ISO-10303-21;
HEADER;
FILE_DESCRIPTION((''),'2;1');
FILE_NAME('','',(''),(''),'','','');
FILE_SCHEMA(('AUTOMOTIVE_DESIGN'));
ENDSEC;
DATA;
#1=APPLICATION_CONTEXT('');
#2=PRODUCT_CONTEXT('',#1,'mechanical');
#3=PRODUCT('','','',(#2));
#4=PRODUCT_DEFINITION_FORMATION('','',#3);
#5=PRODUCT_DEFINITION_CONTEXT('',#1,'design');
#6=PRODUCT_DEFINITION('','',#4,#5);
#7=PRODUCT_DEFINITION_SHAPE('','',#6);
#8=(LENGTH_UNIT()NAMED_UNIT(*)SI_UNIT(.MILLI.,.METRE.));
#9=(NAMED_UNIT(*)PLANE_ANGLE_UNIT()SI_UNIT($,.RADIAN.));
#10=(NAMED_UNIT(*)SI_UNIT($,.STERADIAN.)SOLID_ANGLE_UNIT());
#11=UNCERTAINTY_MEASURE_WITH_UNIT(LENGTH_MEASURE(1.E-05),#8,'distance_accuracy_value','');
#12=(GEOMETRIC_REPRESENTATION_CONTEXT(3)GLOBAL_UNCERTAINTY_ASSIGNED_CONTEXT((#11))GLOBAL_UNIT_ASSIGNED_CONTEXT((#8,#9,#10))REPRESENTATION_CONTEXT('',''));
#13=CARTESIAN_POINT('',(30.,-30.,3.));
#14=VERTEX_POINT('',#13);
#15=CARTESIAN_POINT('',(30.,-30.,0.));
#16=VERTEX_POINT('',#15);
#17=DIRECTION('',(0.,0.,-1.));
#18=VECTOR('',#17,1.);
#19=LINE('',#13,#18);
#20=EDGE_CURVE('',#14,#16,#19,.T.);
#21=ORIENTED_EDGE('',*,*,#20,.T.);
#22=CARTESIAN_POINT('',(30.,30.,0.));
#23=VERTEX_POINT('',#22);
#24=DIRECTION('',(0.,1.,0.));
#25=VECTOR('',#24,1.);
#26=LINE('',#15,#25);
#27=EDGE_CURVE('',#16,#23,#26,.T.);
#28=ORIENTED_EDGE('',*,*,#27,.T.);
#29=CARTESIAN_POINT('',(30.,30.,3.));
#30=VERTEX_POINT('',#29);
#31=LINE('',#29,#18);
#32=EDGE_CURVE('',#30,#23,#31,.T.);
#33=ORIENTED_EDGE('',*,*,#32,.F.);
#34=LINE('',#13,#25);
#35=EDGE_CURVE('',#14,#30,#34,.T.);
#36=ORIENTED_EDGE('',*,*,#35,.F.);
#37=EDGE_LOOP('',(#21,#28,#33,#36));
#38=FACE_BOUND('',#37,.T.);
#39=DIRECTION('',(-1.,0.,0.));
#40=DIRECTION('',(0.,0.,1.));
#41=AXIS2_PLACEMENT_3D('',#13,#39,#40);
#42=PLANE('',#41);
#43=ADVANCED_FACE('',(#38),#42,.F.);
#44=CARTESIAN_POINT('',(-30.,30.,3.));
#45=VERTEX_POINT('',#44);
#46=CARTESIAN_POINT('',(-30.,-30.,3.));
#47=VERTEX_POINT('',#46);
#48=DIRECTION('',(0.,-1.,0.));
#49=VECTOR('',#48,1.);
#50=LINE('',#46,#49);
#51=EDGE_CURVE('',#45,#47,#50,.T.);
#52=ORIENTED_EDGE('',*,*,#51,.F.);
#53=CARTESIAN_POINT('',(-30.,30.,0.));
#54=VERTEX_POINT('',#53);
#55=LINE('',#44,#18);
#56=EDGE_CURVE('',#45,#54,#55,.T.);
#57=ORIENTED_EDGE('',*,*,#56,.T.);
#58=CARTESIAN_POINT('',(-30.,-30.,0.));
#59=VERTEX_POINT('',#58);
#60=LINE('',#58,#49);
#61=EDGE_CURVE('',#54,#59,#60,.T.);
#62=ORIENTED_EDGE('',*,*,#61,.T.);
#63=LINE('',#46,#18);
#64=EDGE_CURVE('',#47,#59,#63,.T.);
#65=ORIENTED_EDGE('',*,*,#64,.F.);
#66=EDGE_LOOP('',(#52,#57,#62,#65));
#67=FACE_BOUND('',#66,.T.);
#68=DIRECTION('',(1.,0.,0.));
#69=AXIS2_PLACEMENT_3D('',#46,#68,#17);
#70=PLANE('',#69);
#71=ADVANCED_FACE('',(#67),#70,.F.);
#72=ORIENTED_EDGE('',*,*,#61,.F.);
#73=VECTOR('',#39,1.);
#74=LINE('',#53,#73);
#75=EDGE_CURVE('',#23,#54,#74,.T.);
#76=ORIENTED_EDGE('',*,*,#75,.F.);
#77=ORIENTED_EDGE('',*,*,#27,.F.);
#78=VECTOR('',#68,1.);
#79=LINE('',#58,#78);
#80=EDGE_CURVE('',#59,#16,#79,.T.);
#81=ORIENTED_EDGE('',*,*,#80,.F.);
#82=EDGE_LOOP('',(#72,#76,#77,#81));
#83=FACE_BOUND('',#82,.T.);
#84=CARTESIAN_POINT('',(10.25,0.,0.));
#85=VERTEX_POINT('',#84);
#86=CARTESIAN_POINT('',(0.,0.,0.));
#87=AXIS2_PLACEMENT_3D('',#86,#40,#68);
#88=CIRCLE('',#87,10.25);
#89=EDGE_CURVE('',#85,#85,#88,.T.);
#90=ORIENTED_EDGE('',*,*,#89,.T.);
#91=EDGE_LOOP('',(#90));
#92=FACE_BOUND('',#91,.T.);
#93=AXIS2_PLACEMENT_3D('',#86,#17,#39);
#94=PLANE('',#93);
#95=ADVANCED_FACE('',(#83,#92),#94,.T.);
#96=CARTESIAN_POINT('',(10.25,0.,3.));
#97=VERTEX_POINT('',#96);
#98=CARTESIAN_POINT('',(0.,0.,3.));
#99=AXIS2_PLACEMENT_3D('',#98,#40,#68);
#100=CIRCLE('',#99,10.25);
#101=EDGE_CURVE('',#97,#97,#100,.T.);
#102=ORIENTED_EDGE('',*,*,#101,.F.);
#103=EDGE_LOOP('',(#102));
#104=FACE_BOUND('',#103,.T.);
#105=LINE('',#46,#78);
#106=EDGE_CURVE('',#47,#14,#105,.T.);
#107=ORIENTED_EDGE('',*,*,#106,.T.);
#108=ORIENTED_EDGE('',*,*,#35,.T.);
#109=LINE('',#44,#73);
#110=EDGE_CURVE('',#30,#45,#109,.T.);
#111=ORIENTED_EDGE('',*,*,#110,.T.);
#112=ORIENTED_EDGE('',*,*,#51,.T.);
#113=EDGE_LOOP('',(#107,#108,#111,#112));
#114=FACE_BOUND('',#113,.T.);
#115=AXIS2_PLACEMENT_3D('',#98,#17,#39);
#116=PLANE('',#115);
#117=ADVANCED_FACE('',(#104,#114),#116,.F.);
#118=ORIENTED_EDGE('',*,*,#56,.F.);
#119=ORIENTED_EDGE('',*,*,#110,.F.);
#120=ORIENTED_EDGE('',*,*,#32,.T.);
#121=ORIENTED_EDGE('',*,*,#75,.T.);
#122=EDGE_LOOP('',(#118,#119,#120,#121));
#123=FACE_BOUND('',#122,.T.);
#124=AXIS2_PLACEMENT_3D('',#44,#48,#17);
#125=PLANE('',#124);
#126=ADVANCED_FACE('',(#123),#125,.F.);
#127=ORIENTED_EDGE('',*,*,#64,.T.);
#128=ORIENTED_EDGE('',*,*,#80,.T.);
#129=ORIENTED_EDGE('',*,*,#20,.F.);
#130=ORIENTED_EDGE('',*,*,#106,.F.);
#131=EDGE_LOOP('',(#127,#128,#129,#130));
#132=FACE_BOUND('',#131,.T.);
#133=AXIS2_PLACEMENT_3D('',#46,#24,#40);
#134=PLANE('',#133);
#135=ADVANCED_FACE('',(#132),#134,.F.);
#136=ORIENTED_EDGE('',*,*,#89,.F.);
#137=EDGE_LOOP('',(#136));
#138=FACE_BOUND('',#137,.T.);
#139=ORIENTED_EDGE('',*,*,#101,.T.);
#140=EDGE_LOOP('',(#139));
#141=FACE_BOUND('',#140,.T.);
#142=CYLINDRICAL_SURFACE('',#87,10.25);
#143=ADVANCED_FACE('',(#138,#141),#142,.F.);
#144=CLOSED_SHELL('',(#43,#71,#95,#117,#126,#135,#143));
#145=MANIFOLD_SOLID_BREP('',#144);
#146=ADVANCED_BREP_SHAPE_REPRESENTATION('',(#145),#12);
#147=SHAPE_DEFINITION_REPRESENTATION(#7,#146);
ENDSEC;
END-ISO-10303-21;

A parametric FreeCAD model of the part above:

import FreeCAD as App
import Part
import Sketcher
from FreeCAD import Vector


def add_polygon(sketch, points):
    """Adds a closed chain of lines whose ends are joined by coincident constraints."""
    first, n = sketch.GeometryCount, len(points)
    for a, b in zip(points, points[1:] + points[:1]):
        sketch.addGeometry(Part.LineSegment(App.Vector(*a, 0), App.Vector(*b, 0)), False)
    for i in range(n):
        sketch.addConstraint(Sketcher.Constraint("Coincident", first + i, 2, first + (i + 1) % n, 1))

doc = App.newDocument("Part")
body = doc.addObject("PartDesign::Body", "Body")

# Sketch on XY plane
sketch1 = body.newObject("Sketcher::SketchObject", "Sketch")
sketch1.AttachmentSupport = (doc.getObject("XY_Plane"), [""])
sketch1.MapMode = "FlatFace"
add_polygon(sketch1, [(-30, 30), (-30, -30), (30, -30), (30, 30)])  # lines 0-3
sketch1.addConstraint([
    Sketcher.Constraint("Vertical", 0),
    Sketcher.Constraint("Horizontal", 1),
    Sketcher.Constraint("Vertical", 2),
    Sketcher.Constraint("Horizontal", 3),
    Sketcher.Constraint("Symmetric", 0, 2, 2, 2, -1, 1),
    Sketcher.Constraint("Equal", 3, 0),
    Sketcher.Constraint("DistanceX", 1, 1, 1, 2, 60.0),
])
pad1 = body.newObject("PartDesign::Pad", "Pad")
pad1.Profile = sketch1
pad1.Length = 3

# Sketch on XY plane
sketch2 = body.newObject("Sketcher::SketchObject", "Sketch001")
sketch2.AttachmentSupport = (doc.getObject("XY_Plane"), [""])
sketch2.MapMode = "FlatFace"
sketch2.AttachmentOffset = App.Placement(Vector(0, 0, 3), App.Rotation())
sketch2.addGeometry(Part.Circle(Vector(0, 0, 0), Vector(0, 0, 1), 10), False)
sketch2.addConstraint([
    Sketcher.Constraint("Coincident", 0, 3, -1, 1),
    Sketcher.Constraint("Diameter", 0, 20.5),
])
pocket1 = body.newObject("PartDesign::Pocket", "Pocket")
pocket1.Profile = sketch2
pocket1.Type = "ThroughAll"

doc.recompute()
